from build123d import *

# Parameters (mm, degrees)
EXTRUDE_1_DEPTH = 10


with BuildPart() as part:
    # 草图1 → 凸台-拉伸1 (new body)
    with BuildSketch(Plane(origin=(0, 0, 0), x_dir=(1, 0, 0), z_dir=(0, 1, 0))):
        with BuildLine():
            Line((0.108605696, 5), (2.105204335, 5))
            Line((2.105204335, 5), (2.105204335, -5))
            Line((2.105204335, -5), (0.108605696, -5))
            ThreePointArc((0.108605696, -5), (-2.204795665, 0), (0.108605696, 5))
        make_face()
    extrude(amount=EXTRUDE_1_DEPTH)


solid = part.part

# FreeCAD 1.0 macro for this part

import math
import FreeCAD as App
import Part
import Sketcher
from FreeCAD import Vector
Q = App.Units.Quantity

doc = App.newDocument("Part")
body = doc.addObject("PartDesign::Body", "Body")

sketch1 = body.newObject("Sketcher::SketchObject", "Sketch")
sketch1.AttachmentSupport = (doc.getObject("XZ_Plane"), [""])
sketch1.MapMode = "FlatFace"
sketch1.addGeometry([
    Part.LineSegment(Vector(2.1, -5, 0), Vector(0.1, -5, 0)),
    Part.ArcOfCircle(Part.Circle(Vector(4.4, 0, 0), Vector(0, 0, 1), 6.6), math.radians(130), math.radians(230)),
    Part.LineSegment(Vector(0.1, 5, 0), Vector(2.1, 5, 0)),
    Part.LineSegment(Vector(2.1, 5, 0), Vector(2.1, -5, 0)),
], False)
sketch1.addConstraint([
    Sketcher.Constraint("Coincident", 0, 2, 1, 2),
    Sketcher.Constraint("Coincident", 1, 1, 2, 1),
    Sketcher.Constraint("Coincident", 2, 2, 3, 1),
    Sketcher.Constraint("Coincident", 3, 2, 0, 1),
    Sketcher.Constraint("Horizontal", 0),
    Sketcher.Constraint("Horizontal", 2),
    Sketcher.Constraint("Vertical", 3),
    Sketcher.Constraint("Symmetric", 0, 2, 1, 1, -1),
    Sketcher.Constraint("DistanceY", 3, 2, 3, 1, Q("10 mm")),
    Sketcher.Constraint("Radius", 1, Q("6.56 mm")),
    Sketcher.Constraint("DistanceX", 2, 2, 1, 3, Q("2.25 mm")),
    Sketcher.Constraint("DistanceX", -1, 1, 1, 3, Q("4.355204 mm")),
])
pad1 = body.newObject("PartDesign::Pad", "Pad")
pad1.Profile = sketch1
pad1.Length = 10
pad1.Reversed = True

doc.recompute()
